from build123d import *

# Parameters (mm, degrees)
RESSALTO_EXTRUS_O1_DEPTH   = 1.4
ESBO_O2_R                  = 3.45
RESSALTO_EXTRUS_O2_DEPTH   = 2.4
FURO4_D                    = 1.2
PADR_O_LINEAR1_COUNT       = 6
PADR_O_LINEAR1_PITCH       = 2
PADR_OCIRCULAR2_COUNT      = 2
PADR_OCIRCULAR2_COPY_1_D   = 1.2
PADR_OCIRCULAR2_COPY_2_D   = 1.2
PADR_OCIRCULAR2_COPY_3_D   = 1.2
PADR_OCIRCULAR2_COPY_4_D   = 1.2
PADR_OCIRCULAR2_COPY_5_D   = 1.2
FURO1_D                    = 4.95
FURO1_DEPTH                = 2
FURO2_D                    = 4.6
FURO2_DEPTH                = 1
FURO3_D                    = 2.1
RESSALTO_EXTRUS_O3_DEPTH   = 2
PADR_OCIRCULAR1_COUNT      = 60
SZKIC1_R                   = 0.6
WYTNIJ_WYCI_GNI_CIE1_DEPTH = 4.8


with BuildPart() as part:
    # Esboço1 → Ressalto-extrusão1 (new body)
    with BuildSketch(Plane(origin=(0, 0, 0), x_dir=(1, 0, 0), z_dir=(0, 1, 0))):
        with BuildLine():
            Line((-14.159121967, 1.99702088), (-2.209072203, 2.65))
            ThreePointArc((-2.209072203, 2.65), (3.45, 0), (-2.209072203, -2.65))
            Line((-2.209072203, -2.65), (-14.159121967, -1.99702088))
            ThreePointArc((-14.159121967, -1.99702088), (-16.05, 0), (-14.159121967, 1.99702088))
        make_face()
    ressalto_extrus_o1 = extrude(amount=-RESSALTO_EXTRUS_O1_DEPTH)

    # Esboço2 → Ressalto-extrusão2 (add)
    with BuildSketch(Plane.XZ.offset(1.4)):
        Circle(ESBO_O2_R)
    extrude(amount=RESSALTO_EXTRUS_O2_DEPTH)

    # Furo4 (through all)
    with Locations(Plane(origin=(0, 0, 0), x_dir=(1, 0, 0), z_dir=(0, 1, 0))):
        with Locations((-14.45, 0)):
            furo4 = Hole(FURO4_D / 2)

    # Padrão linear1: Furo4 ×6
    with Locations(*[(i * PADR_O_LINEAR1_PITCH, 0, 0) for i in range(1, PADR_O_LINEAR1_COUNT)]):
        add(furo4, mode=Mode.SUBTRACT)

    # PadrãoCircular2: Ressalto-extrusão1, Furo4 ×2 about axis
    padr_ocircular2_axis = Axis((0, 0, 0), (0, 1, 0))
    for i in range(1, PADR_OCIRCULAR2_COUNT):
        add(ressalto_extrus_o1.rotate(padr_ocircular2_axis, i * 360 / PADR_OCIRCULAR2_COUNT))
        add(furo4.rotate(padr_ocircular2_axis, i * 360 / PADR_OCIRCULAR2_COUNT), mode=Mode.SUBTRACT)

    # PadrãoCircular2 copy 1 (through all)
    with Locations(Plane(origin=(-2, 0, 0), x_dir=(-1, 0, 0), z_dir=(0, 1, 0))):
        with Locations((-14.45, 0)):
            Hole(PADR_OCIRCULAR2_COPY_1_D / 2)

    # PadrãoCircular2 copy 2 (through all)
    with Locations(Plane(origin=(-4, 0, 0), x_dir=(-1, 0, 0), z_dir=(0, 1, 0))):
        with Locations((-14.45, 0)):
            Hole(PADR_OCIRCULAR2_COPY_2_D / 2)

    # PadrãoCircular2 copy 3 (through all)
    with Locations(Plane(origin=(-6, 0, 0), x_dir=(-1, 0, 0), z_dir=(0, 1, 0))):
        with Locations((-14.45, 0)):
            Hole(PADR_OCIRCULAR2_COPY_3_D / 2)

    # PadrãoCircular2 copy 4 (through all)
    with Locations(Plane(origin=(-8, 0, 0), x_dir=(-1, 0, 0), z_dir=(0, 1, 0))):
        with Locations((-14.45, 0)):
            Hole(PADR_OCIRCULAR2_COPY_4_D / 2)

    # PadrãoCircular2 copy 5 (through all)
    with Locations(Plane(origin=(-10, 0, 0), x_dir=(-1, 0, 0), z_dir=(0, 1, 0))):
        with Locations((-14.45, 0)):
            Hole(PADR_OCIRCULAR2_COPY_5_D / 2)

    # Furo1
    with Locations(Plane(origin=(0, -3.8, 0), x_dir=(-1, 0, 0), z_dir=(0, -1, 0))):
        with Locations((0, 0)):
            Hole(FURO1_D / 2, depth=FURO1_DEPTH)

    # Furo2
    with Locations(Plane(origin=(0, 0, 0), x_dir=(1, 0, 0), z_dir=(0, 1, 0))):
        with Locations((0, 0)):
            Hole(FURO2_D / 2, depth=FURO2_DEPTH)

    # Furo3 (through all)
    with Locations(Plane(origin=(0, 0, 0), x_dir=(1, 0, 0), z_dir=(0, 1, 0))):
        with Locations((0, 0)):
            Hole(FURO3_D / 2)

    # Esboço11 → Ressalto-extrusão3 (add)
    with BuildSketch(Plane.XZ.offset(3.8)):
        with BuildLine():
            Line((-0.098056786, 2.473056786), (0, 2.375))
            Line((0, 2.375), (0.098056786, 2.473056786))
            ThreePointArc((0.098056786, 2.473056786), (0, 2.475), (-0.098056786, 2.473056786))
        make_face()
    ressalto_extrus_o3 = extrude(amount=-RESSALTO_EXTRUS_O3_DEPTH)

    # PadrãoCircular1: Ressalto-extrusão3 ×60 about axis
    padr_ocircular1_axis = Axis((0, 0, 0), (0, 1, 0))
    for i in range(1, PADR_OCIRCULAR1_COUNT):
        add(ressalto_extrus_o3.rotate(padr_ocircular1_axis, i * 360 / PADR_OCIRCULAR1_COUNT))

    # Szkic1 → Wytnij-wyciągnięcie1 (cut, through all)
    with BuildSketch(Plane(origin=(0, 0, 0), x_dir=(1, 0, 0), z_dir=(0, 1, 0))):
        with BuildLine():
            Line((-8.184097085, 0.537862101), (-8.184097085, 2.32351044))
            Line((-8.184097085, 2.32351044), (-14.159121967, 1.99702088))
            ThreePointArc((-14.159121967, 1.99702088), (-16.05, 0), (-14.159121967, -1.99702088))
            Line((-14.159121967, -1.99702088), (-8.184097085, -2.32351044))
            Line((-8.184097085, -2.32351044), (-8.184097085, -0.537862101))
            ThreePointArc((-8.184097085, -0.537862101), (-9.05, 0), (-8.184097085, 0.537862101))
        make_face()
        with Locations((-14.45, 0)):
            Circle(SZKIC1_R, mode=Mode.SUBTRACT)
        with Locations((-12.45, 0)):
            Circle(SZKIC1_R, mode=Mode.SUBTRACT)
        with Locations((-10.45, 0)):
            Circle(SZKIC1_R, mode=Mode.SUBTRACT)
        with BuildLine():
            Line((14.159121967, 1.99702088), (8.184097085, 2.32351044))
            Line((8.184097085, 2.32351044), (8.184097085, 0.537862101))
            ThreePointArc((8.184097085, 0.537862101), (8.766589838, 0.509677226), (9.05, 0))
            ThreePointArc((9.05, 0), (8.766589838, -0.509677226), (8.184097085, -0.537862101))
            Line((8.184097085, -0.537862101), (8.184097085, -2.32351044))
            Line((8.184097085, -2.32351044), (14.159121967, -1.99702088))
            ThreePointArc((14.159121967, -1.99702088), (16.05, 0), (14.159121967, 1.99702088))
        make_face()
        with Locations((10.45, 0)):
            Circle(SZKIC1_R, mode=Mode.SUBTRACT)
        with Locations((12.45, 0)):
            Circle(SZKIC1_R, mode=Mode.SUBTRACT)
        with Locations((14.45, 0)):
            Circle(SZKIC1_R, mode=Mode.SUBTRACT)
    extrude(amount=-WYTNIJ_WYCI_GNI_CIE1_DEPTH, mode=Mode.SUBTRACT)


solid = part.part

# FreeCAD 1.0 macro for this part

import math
import FreeCAD as App
import Part
import Sketcher
from FreeCAD import Vector
Q = App.Units.Quantity

doc = App.newDocument("Part")
params = doc.addObject("Spreadsheet::Sheet", "Params")
for row, (alias, value) in enumerate([
    ("sketch1_radius", "2 mm"),
    ("sketch1_radius2", "3.45 mm"),
    ("pad1_length", "1.4 mm"),
    ("sketch2_diameter", "6.9 mm"),
    ("pad2_length", "2.4 mm"),
    ("sketch3_diameter", "1.2 mm"),
    ("hole_diameter", "1.2 mm"),
    ("linearpattern_pitch", "2 mm"),
    ("sketch4_diameter", "1.2 mm"),
    ("hole2_diameter", "1.2 mm"),
    ("sketch5_diameter", "1.2 mm"),
    ("hole3_diameter", "1.2 mm"),
    ("sketch6_diameter", "1.2 mm"),
    ("hole4_diameter", "1.2 mm"),
    ("sketch7_diameter", "1.2 mm"),
    ("hole5_diameter", "1.2 mm"),
    ("sketch8_diameter", "1.2 mm"),
    ("hole6_diameter", "1.2 mm"),
    ("sketch9_diameter", "4.95 mm"),
    ("hole7_diameter", "4.95 mm"),
    ("hole7_depth", "2 mm"),
    ("sketch10_diameter", "4.6 mm"),
    ("hole8_diameter", "4.6 mm"),
    ("hole8_depth", "1 mm"),
    ("sketch11_diameter", "2.1 mm"),
    ("hole9_diameter", "2.1 mm"),
    ("pad3_length", "2 mm"),
    ("sketch13_radius", "2 mm"),
    ("sketch13_diameter", "1.2 mm"),
], start=1):
    params.set(f"A{row}", alias)
    params.set(f"B{row}", "=" + value)
    params.setAlias(f"B{row}", alias)

body = doc.addObject("PartDesign::Body", "Body")

# Sketch on XZ plane
sketch1 = body.newObject("Sketcher::SketchObject", "Sketch")
sketch1.AttachmentSupport = (doc.getObject("XZ_Plane"), [""])
sketch1.MapMode = "FlatFace"
sketch1.addGeometry([
    Part.LineSegment(Vector(-2.2, -2.6, 0), Vector(-14.2, -2, 0)),
    Part.ArcOfCircle(Part.Circle(Vector(-14.1, 0, 0), Vector(0, 0, 1), 2), math.radians(93), math.radians(267)),
    Part.LineSegment(Vector(-14.2, 2, 0), Vector(-2.2, 2.6, 0)),
    Part.ArcOfCircle(Part.Circle(Vector(0, 0, 0), Vector(0, 0, 1), 3.5), math.radians(-130), math.radians(130)),
], False)
sketch1.addConstraint([
    Sketcher.Constraint("Tangent", 0, 2, 1, 2),
    Sketcher.Constraint("Tangent", 1, 1, 2, 1),
    Sketcher.Constraint("Coincident", 2, 2, 3, 2),
    Sketcher.Constraint("Coincident", 3, 1, 0, 1),
    Sketcher.Constraint("Coincident", 3, 3, -1, 1),
    Sketcher.Constraint("Symmetric", 0, 2, 1, 1, -1),
    Sketcher.Constraint("Radius", 1, Q("2 mm")),
    Sketcher.Constraint("Radius", 3, Q("3.45 mm")),
    Sketcher.Constraint("DistanceY", 3, 1, 2, 2, Q("5.3 mm")),
    Sketcher.Constraint("DistanceX", 1, 3, -1, 1, Q("14.05 mm")),
])
sketch1.setExpression("Constraints[6]", "Params.sketch1_radius")
sketch1.setExpression("Constraints[7]", "Params.sketch1_radius2")
pad1 = body.newObject("PartDesign::Pad", "Pad")
pad1.Profile = sketch1
pad1.setExpression("Length", "Params.pad1_length")

# Sketch on XZ plane
sketch2 = body.newObject("Sketcher::SketchObject", "Sketch001")
sketch2.AttachmentSupport = (doc.getObject("XZ_Plane"), [""])
sketch2.MapMode = "FlatFace"
sketch2.AttachmentOffset = App.Placement(Vector(0, 0, 1.4), App.Rotation())
sketch2.addGeometry(Part.Circle(Vector(0, 0, 0), Vector(0, 0, 1), 3.5), False)
sketch2.addConstraint([
    Sketcher.Constraint("Coincident", 0, 3, -1, 1),
    Sketcher.Constraint("Diameter", 0, Q("6.9 mm")),
])
sketch2.setExpression("Constraints[1]", "Params.sketch2_diameter")
pad2 = body.newObject("PartDesign::Pad", "Pad001")
pad2.Profile = sketch2
pad2.setExpression("Length", "Params.pad2_length")

# Sketch on XZ plane
sketch3 = body.newObject("Sketcher::SketchObject", "Sketch002")
sketch3.AttachmentSupport = (doc.getObject("XZ_Plane"), [""])
sketch3.MapMode = "FlatFace"
sketch3.addGeometry(Part.Circle(Vector(-14.4, 0, 0), Vector(0, 0, 1), 0.6), False)
sketch3.addConstraint([
    Sketcher.Constraint("PointOnObject", 0, 3, -1),
    Sketcher.Constraint("Diameter", 0, Q("1.2 mm")),
    Sketcher.Constraint("DistanceX", 0, 3, -1, 1, Q("14.45 mm")),
])
sketch3.setExpression("Constraints[1]", "Params.sketch3_diameter")
doc.recompute()
hole = body.newObject("PartDesign::Hole", "Hole")
hole.Profile = sketch3
hole.ThreadType = "None"
hole.setExpression("Diameter", "Params.hole_diameter")
hole.DepthType = "ThroughAll"
hole.Reversed = True
doc.recompute()

linearpattern = body.newObject("PartDesign::LinearPattern", "LinearPattern")
linearpattern.Originals = [hole]
linearpattern.Direction = (doc.getObject("X_Axis"), [""])
linearpattern.Mode = "offset"
linearpattern.setExpression("Offset", "Params.linearpattern_pitch")
linearpattern.Occurrences = 6
body.Tip = linearpattern
doc.recompute()

polarpattern = body.newObject("PartDesign::PolarPattern", "PolarPattern")
polarpattern.Originals = [pad1, hole]
polarpattern.Axis = (doc.getObject("Y_Axis"), [""])
polarpattern.Angle = 360
polarpattern.Occurrences = 2
body.Tip = polarpattern

# Sketch on XZ plane
sketch4 = body.newObject("Sketcher::SketchObject", "Sketch003")
sketch4.AttachmentSupport = (doc.getObject("XZ_Plane"), [""])
sketch4.MapMode = "FlatFace"
sketch4.addGeometry(Part.Circle(Vector(12.4, 0, 0), Vector(0, 0, 1), 0.6), False)
sketch4.addConstraint([
    Sketcher.Constraint("PointOnObject", 0, 3, -1),
    Sketcher.Constraint("Diameter", 0, Q("1.2 mm")),
    Sketcher.Constraint("DistanceX", -1, 1, 0, 3, Q("12.45 mm")),
])
sketch4.setExpression("Constraints[1]", "Params.sketch4_diameter")
doc.recompute()
hole2 = body.newObject("PartDesign::Hole", "Hole001")
hole2.Profile = sketch4
hole2.ThreadType = "None"
hole2.setExpression("Diameter", "Params.hole2_diameter")
hole2.DepthType = "ThroughAll"
hole2.Reversed = True

# Sketch on XZ plane
sketch5 = body.newObject("Sketcher::SketchObject", "Sketch004")
sketch5.AttachmentSupport = (doc.getObject("XZ_Plane"), [""])
sketch5.MapMode = "FlatFace"
sketch5.addGeometry(Part.Circle(Vector(10.4, 0, 0), Vector(0, 0, 1), 0.6), False)
sketch5.addConstraint([
    Sketcher.Constraint("PointOnObject", 0, 3, -1),
    Sketcher.Constraint("Diameter", 0, Q("1.2 mm")),
    Sketcher.Constraint("DistanceX", -1, 1, 0, 3, Q("10.45 mm")),
])
sketch5.setExpression("Constraints[1]", "Params.sketch5_diameter")
doc.recompute()
hole3 = body.newObject("PartDesign::Hole", "Hole002")
hole3.Profile = sketch5
hole3.ThreadType = "None"
hole3.setExpression("Diameter", "Params.hole3_diameter")
hole3.DepthType = "ThroughAll"
hole3.Reversed = True

# Sketch on XZ plane
sketch6 = body.newObject("Sketcher::SketchObject", "Sketch005")
sketch6.AttachmentSupport = (doc.getObject("XZ_Plane"), [""])
sketch6.MapMode = "FlatFace"
sketch6.addGeometry(Part.Circle(Vector(8.4, 0, 0), Vector(0, 0, 1), 0.6), False)
sketch6.addConstraint([
    Sketcher.Constraint("PointOnObject", 0, 3, -1),
    Sketcher.Constraint("Diameter", 0, Q("1.2 mm")),
    Sketcher.Constraint("DistanceX", -1, 1, 0, 3, Q("8.45 mm")),
])
sketch6.setExpression("Constraints[1]", "Params.sketch6_diameter")
doc.recompute()
hole4 = body.newObject("PartDesign::Hole", "Hole003")
hole4.Profile = sketch6
hole4.ThreadType = "None"
hole4.setExpression("Diameter", "Params.hole4_diameter")
hole4.DepthType = "ThroughAll"
hole4.Reversed = True

# Sketch on XZ plane
sketch7 = body.newObject("Sketcher::SketchObject", "Sketch006")
sketch7.AttachmentSupport = (doc.getObject("XZ_Plane"), [""])
sketch7.MapMode = "FlatFace"
sketch7.addGeometry(Part.Circle(Vector(6.5, 0, 0), Vector(0, 0, 1), 0.6), False)
sketch7.addConstraint([
    Sketcher.Constraint("PointOnObject", 0, 3, -1),
    Sketcher.Constraint("Diameter", 0, Q("1.2 mm")),
    Sketcher.Constraint("DistanceX", -1, 1, 0, 3, Q("6.45 mm")),
])
sketch7.setExpression("Constraints[1]", "Params.sketch7_diameter")
doc.recompute()
hole5 = body.newObject("PartDesign::Hole", "Hole004")
hole5.Profile = sketch7
hole5.ThreadType = "None"
hole5.setExpression("Diameter", "Params.hole5_diameter")
hole5.DepthType = "ThroughAll"
hole5.Reversed = True

# Sketch on XZ plane
sketch8 = body.newObject("Sketcher::SketchObject", "Sketch007")
sketch8.AttachmentSupport = (doc.getObject("XZ_Plane"), [""])
sketch8.MapMode = "FlatFace"
sketch8.addGeometry(Part.Circle(Vector(4.5, 0, 0), Vector(0, 0, 1), 0.6), False)
sketch8.addConstraint([
    Sketcher.Constraint("PointOnObject", 0, 3, -1),
    Sketcher.Constraint("Diameter", 0, Q("1.2 mm")),
    Sketcher.Constraint("DistanceX", -1, 1, 0, 3, Q("4.45 mm")),
])
sketch8.setExpression("Constraints[1]", "Params.sketch8_diameter")
doc.recompute()
hole6 = body.newObject("PartDesign::Hole", "Hole005")
hole6.Profile = sketch8
hole6.ThreadType = "None"
hole6.setExpression("Diameter", "Params.hole6_diameter")
hole6.DepthType = "ThroughAll"
hole6.Reversed = True

# Sketch on XZ plane
sketch9 = body.newObject("Sketcher::SketchObject", "Sketch008")
sketch9.AttachmentSupport = (doc.getObject("XZ_Plane"), [""])
sketch9.MapMode = "FlatFace"
sketch9.AttachmentOffset = App.Placement(Vector(0, 0, 3.8), App.Rotation())
sketch9.addGeometry(Part.Circle(Vector(0, 0, 0), Vector(0, 0, 1), 2.5), False)
sketch9.addConstraint([
    Sketcher.Constraint("Coincident", 0, 3, -1, 1),
    Sketcher.Constraint("Diameter", 0, Q("4.95 mm")),
])
sketch9.setExpression("Constraints[1]", "Params.sketch9_diameter")
doc.recompute()
hole7 = body.newObject("PartDesign::Hole", "Hole006")
hole7.Profile = sketch9
hole7.ThreadType = "None"
hole7.setExpression("Diameter", "Params.hole7_diameter")
hole7.DepthType = "Dimension"
hole7.setExpression("Depth", "Params.hole7_depth")
hole7.DrillPoint = "Flat"

# Sketch on XZ plane
sketch10 = body.newObject("Sketcher::SketchObject", "Sketch009")
sketch10.AttachmentSupport = (doc.getObject("XZ_Plane"), [""])
sketch10.MapMode = "FlatFace"
sketch10.addGeometry(Part.Circle(Vector(0, 0, 0), Vector(0, 0, 1), 2.3), False)
sketch10.addConstraint([
    Sketcher.Constraint("Coincident", 0, 3, -1, 1),
    Sketcher.Constraint("Diameter", 0, Q("4.6 mm")),
])
sketch10.setExpression("Constraints[1]", "Params.sketch10_diameter")
doc.recompute()
hole8 = body.newObject("PartDesign::Hole", "Hole007")
hole8.Profile = sketch10
hole8.ThreadType = "None"
hole8.setExpression("Diameter", "Params.hole8_diameter")
hole8.DepthType = "Dimension"
hole8.setExpression("Depth", "Params.hole8_depth")
hole8.DrillPoint = "Flat"
hole8.Reversed = True

# Sketch on XZ plane
sketch11 = body.newObject("Sketcher::SketchObject", "Sketch010")
sketch11.AttachmentSupport = (doc.getObject("XZ_Plane"), [""])
sketch11.MapMode = "FlatFace"
sketch11.addGeometry(Part.Circle(Vector(0, 0, 0), Vector(0, 0, 1), 1.1), False)
sketch11.addConstraint([
    Sketcher.Constraint("Coincident", 0, 3, -1, 1),
    Sketcher.Constraint("Diameter", 0, Q("2.1 mm")),
])
sketch11.setExpression("Constraints[1]", "Params.sketch11_diameter")
doc.recompute()
hole9 = body.newObject("PartDesign::Hole", "Hole008")
hole9.Profile = sketch11
hole9.ThreadType = "None"
hole9.setExpression("Diameter", "Params.hole9_diameter")
hole9.DepthType = "ThroughAll"
hole9.Reversed = True

# Sketch on XZ plane
sketch12 = body.newObject("Sketcher::SketchObject", "Sketch011")
sketch12.AttachmentSupport = (doc.getObject("XZ_Plane"), [""])
sketch12.MapMode = "FlatFace"
sketch12.AttachmentOffset = App.Placement(Vector(0, 0, 3.8), App.Rotation())
sketch12.addGeometry([
    Part.LineSegment(Vector(-0.1, 2.47, 0), Vector(0, 2.38, 0)),
    Part.LineSegment(Vector(0, 2.38, 0), Vector(0.1, 2.47, 0)),
    Part.ArcOfCircle(Part.Circle(Vector(0, 0, 0), Vector(0, 0, 1), 2.48), math.radians(87.73), math.radians(92.27)),
], False)
sketch12.addConstraint([
    Sketcher.Constraint("Coincident", 0, 2, 1, 1),
    Sketcher.Constraint("Coincident", 1, 2, 2, 1),
    Sketcher.Constraint("Coincident", 2, 2, 0, 1),
    Sketcher.Constraint("Coincident", 2, 3, -1, 1),
    Sketcher.Constraint("PointOnObject", 0, 2, -2),
    Sketcher.Constraint("Perpendicular", 0, 1),
    Sketcher.Constraint("Horizontal", 1, 2, 2, 2),
    Sketcher.Constraint("Radius", 2, Q("2.475 mm")),
    Sketcher.Constraint("DistanceY", -1, 1, 0, 2, Q("2.375 mm")),
])
pad3 = body.newObject("PartDesign::Pad", "Pad002")
pad3.Profile = sketch12
pad3.setExpression("Length", "Params.pad3_length")
pad3.Reversed = True
doc.recompute()

polarpattern2 = body.newObject("PartDesign::PolarPattern", "PolarPattern001")
polarpattern2.Originals = [pad3]
polarpattern2.Axis = (doc.getObject("Y_Axis"), [""])
polarpattern2.Angle = 360
polarpattern2.Occurrences = 60
body.Tip = polarpattern2

# Sketch on XZ plane
sketch13 = body.newObject("Sketcher::SketchObject", "Sketch012")
sketch13.AttachmentSupport = (doc.getObject("XZ_Plane"), [""])
sketch13.MapMode = "FlatFace"
sketch13.addGeometry([
    Part.LineSegment(Vector(-8.2, -0.5, 0), Vector(-8.2, -2.3, 0)),  # 0
    Part.LineSegment(Vector(-8.2, -2.3, 0), Vector(-14.2, -2, 0)),  # 1
    Part.ArcOfCircle(Part.Circle(Vector(-14.1, 0, 0), Vector(0, 0, 1), 2), math.radians(93), math.radians(267)),  # 2
    Part.LineSegment(Vector(-14.2, 2, 0), Vector(-8.2, 2.3, 0)),  # 3
    Part.LineSegment(Vector(-8.2, 2.3, 0), Vector(-8.2, 0.5, 0)),  # 4
    Part.ArcOfCircle(Part.Circle(Vector(-8.4, 0, 0), Vector(0, 0, 1), 0.6), math.radians(64), math.radians(296)),  # 5
    Part.Circle(Vector(-14.4, 0, 0), Vector(0, 0, 1), 0.6),  # 6
    Part.Circle(Vector(-12.4, 0, 0), Vector(0, 0, 1), 0.6),  # 7
    Part.Circle(Vector(-10.4, 0, 0), Vector(0, 0, 1), 0.6),  # 8
    Part.LineSegment(Vector(14.2, -2, 0), Vector(8.2, -2.3, 0)),  # 9
    Part.LineSegment(Vector(8.2, -2.3, 0), Vector(8.2, -0.5, 0)),  # 10
    Part.ArcOfCircle(Part.Circle(Vector(8.4, 0, 0), Vector(0, 0, 1), 0.6), math.radians(-116), math.radians(0)),  # 11
    Part.ArcOfCircle(Part.Circle(Vector(8.4, 0, 0), Vector(0, 0, 1), 0.6), math.radians(0), math.radians(116)),  # 12
    Part.LineSegment(Vector(8.2, 0.5, 0), Vector(8.2, 2.3, 0)),  # 13
    Part.LineSegment(Vector(8.2, 2.3, 0), Vector(14.2, 2, 0)),  # 14
    Part.ArcOfCircle(Part.Circle(Vector(14.1, 0, 0), Vector(0, 0, 1), 2), math.radians(-87), math.radians(87)),  # 15
    Part.Circle(Vector(10.4, 0, 0), Vector(0, 0, 1), 0.6),  # 16
    Part.Circle(Vector(12.4, 0, 0), Vector(0, 0, 1), 0.6),  # 17
    Part.Circle(Vector(14.4, 0, 0), Vector(0, 0, 1), 0.6),  # 18
], False)
sketch13.addConstraint([
    Sketcher.Constraint("Coincident", 0, 2, 1, 1),
    Sketcher.Constraint("Tangent", 1, 2, 2, 2),
    Sketcher.Constraint("Tangent", 2, 1, 3, 1),
    Sketcher.Constraint("Coincident", 3, 2, 4, 1),
    Sketcher.Constraint("Coincident", 4, 2, 5, 1),
    Sketcher.Constraint("Coincident", 5, 2, 0, 1),
    Sketcher.Constraint("Coincident", 9, 2, 10, 1),
    Sketcher.Constraint("Coincident", 10, 2, 11, 1),
    Sketcher.Constraint("Tangent", 11, 2, 12, 1),
    Sketcher.Constraint("Coincident", 12, 2, 13, 1),
    Sketcher.Constraint("Coincident", 13, 2, 14, 1),
    Sketcher.Constraint("Tangent", 14, 2, 15, 2),
    Sketcher.Constraint("Tangent", 15, 1, 9, 1),
    Sketcher.Constraint("Vertical", 0),
    Sketcher.Constraint("Vertical", 4),
    Sketcher.Constraint("Vertical", 10),
    Sketcher.Constraint("Vertical", 13),
    Sketcher.Constraint("Equal", 5, 6),
    Sketcher.Constraint("Equal", 6, 7),
    Sketcher.Constraint("Equal", 7, 8),
    Sketcher.Constraint("Equal", 8, 11),
    Sketcher.Constraint("Equal", 11, 12),
    Sketcher.Constraint("Equal", 2, 15),
    Sketcher.Constraint("Equal", 12, 16),
    Sketcher.Constraint("Equal", 16, 17),
    Sketcher.Constraint("Equal", 17, 18),
    Sketcher.Constraint("Symmetric", 5, 3, 11, 3, -1, 1),
    Sketcher.Constraint("Symmetric", 2, 3, 15, 3, -1, 1),
    Sketcher.Constraint("Symmetric", 8, 3, 16, 3, -1, 1),
    Sketcher.Constraint("Symmetric", 7, 3, 17, 3, -1, 1),
    Sketcher.Constraint("Symmetric", 6, 3, 18, 3, -1, 1),
    Sketcher.Constraint("Symmetric", 3, 2, 9, 2, -1, 1),
    Sketcher.Constraint("Symmetric", 0, 2, 13, 2, -1, 1),
    Sketcher.Constraint("Symmetric", 0, 2, 9, 2, -2),
    Sketcher.Constraint("PointOnObject", 2, 3, -1),
    Sketcher.Constraint("PointOnObject", 5, 3, -1),
    Sketcher.Constraint("PointOnObject", 6, 3, -1),
    Sketcher.Constraint("PointOnObject", 7, 3, -1),
    Sketcher.Constraint("PointOnObject", 8, 3, -1),
    Sketcher.Constraint("PointOnObject", 11, 2, -1),
    Sketcher.Constraint("Radius", 2, Q("2 mm")),
    Sketcher.Constraint("Diameter", 6, Q("1.2 mm")),
    Sketcher.Constraint("DistanceX", 6, 3, 5, 3, Q("6 mm")),
    Sketcher.Constraint("DistanceX", 6, 3, 7, 3, Q("2 mm")),
    Sketcher.Constraint("DistanceX", 8, 3, 5, 3, Q("2 mm")),
    Sketcher.Constraint("DistanceX", 2, 3, 5, 3, Q("5.6 mm")),
    Sketcher.Constraint("DistanceX", 5, 3, 11, 3, Q("16.9 mm")),
    Sketcher.Constraint("DistanceY", 0, 2, 0, 1, Q("1.785648 mm")),
    Sketcher.Constraint("Distance", 1, Q("5.983938 mm")),
])
sketch13.setExpression("Constraints[40]", "Params.sketch13_radius")
sketch13.setExpression("Constraints[41]", "Params.sketch13_diameter")
pocket1 = body.newObject("PartDesign::Pocket", "Pocket")
pocket1.Profile = sketch13
pocket1.Type = "ThroughAll"
pocket1.Reversed = True

doc.recompute()
